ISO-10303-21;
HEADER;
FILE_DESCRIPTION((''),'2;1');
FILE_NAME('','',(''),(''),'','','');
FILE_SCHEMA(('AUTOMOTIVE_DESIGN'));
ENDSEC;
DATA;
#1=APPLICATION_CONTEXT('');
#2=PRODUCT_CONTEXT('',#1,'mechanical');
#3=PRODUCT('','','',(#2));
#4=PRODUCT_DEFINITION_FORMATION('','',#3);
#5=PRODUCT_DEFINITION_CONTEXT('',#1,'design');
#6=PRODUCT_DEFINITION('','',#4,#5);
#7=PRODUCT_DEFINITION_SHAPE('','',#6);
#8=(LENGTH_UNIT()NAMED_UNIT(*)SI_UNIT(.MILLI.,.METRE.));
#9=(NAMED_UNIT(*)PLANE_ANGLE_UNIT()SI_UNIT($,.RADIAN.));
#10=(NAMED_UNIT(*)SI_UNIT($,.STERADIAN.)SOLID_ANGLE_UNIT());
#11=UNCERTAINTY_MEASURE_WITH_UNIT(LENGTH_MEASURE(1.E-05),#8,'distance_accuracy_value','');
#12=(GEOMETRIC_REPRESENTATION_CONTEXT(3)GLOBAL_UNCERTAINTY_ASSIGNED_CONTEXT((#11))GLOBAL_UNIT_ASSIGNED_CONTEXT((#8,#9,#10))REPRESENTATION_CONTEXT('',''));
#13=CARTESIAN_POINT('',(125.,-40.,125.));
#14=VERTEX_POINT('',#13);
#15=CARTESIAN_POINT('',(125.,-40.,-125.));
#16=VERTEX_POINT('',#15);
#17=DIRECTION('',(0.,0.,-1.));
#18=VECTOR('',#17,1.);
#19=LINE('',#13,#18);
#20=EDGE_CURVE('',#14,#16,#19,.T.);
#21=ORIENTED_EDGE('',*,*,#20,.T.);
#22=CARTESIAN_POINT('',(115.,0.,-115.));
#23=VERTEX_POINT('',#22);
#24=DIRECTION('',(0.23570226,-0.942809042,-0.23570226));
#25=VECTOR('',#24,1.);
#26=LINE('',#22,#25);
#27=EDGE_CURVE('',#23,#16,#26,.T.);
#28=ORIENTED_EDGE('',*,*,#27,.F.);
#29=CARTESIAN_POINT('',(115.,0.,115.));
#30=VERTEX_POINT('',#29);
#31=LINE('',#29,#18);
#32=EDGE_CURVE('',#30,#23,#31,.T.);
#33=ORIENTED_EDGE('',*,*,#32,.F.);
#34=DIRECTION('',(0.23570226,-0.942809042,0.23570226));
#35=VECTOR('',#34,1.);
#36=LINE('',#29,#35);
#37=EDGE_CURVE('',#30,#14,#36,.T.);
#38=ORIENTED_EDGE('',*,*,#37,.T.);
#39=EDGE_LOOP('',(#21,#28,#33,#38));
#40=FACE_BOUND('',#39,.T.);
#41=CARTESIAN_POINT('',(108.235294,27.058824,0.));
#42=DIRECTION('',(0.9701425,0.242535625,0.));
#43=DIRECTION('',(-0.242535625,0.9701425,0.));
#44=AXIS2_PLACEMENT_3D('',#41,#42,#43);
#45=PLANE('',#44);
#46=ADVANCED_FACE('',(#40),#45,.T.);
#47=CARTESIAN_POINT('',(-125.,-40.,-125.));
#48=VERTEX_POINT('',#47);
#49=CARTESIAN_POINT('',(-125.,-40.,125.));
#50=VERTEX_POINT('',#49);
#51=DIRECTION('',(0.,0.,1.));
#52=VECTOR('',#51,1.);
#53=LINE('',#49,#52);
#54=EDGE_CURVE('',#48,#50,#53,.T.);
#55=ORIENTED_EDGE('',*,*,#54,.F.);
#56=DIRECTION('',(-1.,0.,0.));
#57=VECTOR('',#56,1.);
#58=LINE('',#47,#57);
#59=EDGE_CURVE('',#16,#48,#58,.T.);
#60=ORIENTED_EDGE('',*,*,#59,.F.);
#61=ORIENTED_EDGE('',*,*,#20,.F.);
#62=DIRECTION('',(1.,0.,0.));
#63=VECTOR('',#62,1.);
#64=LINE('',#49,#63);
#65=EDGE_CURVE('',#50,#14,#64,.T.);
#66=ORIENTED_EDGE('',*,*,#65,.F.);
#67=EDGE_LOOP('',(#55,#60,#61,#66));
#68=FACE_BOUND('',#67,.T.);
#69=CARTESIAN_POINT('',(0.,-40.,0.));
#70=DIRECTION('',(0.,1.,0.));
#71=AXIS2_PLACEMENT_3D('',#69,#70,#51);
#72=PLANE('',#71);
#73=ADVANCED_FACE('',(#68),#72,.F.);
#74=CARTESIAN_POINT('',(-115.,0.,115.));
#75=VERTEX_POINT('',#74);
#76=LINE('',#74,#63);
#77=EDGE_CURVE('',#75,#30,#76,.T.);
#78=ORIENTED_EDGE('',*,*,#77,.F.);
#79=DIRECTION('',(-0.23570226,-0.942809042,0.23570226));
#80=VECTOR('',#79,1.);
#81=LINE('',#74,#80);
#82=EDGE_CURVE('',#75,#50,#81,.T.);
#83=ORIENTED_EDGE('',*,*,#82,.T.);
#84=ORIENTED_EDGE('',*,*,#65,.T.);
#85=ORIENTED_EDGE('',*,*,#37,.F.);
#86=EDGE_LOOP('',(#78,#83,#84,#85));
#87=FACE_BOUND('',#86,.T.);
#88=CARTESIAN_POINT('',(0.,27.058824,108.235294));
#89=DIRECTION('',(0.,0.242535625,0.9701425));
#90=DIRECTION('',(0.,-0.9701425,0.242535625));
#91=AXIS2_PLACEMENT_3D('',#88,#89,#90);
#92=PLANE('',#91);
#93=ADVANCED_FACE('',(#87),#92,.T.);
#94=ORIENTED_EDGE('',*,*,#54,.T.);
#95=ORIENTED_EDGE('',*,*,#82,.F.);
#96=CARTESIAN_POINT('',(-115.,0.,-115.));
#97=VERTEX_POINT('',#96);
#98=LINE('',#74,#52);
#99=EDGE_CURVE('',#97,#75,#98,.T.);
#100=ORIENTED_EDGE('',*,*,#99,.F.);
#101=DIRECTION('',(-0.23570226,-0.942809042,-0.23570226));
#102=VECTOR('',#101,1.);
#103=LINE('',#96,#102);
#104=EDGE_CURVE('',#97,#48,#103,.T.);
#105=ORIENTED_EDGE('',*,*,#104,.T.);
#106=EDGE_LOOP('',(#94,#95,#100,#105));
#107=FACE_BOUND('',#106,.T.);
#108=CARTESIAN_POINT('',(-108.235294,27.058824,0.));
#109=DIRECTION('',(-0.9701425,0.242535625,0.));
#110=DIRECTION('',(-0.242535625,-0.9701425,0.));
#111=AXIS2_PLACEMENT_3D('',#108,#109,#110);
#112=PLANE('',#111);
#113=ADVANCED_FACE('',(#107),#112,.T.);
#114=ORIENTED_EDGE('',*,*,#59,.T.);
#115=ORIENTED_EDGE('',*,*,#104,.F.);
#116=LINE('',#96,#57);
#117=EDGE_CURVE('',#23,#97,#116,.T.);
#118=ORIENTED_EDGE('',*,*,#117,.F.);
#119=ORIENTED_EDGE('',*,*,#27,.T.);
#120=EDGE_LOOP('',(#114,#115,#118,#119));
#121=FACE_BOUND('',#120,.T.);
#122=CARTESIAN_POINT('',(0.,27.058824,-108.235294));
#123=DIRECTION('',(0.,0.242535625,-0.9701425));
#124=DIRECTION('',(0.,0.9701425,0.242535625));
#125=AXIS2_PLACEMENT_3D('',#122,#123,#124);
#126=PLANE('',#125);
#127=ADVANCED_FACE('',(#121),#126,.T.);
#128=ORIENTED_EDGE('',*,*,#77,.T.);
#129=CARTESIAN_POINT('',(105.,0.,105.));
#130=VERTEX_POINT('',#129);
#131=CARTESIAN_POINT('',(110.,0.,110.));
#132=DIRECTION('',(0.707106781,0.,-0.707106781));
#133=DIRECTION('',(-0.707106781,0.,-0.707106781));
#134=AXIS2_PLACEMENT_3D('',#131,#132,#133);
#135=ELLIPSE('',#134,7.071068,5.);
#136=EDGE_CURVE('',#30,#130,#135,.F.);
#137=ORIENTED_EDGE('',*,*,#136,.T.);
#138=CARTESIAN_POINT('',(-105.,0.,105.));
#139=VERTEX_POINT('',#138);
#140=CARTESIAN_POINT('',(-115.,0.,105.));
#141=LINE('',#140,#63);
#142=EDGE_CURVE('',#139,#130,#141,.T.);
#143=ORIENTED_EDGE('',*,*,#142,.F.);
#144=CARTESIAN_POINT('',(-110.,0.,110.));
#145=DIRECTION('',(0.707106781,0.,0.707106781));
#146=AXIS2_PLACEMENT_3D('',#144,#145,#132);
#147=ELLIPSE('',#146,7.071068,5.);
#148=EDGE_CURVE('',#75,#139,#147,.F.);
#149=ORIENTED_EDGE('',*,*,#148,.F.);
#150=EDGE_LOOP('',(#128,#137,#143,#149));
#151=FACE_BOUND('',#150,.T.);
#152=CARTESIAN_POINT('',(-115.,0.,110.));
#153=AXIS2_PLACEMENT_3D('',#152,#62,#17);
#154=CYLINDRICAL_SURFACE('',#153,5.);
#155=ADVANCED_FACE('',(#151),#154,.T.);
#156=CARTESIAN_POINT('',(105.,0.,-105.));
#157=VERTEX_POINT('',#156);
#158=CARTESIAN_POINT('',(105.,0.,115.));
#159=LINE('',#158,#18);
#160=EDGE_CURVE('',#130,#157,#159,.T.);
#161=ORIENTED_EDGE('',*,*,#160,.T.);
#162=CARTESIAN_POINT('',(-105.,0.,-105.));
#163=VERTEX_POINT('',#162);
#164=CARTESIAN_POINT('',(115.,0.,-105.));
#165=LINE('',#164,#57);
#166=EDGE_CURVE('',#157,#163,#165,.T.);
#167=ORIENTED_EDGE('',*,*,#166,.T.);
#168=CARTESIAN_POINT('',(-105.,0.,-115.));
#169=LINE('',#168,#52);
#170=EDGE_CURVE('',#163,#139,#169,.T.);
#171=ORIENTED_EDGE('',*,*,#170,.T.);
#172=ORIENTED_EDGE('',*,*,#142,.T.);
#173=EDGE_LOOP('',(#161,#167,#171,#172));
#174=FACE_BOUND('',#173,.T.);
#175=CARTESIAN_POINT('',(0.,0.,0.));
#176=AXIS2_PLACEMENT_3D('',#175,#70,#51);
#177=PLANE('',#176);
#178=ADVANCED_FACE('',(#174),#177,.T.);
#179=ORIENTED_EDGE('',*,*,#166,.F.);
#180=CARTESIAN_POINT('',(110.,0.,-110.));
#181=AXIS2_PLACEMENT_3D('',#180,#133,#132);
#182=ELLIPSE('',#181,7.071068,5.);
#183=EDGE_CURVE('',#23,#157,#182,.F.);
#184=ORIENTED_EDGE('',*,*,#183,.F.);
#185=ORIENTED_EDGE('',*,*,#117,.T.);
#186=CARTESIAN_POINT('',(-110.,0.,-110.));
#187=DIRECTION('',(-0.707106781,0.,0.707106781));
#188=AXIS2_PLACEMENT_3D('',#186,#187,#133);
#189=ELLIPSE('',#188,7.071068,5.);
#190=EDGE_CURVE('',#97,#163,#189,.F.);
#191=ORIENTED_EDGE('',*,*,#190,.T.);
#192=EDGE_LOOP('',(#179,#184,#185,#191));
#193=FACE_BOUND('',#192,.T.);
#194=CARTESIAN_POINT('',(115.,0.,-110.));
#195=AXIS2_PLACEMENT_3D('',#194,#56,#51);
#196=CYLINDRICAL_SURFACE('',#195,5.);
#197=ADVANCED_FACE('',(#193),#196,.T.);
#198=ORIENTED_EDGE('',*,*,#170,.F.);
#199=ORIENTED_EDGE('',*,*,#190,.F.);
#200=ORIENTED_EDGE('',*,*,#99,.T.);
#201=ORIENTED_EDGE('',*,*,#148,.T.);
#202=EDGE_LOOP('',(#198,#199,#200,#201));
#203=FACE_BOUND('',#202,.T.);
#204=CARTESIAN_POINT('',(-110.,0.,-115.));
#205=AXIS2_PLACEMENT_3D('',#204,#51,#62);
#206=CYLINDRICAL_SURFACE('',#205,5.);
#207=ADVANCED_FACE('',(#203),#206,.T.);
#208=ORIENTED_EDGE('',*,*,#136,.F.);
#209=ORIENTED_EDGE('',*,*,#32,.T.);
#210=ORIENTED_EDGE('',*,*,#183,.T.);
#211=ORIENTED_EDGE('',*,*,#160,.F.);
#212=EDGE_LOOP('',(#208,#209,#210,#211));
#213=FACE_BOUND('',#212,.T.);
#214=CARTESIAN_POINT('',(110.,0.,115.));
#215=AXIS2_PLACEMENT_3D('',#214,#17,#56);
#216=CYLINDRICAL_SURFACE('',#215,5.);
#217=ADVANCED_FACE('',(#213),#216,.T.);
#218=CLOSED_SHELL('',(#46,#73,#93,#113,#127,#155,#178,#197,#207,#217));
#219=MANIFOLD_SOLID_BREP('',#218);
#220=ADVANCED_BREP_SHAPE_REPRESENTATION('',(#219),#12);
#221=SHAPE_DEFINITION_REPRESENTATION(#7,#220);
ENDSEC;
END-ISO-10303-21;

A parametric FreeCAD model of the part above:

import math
import FreeCAD as App
import Part
import Sketcher
from FreeCAD import Vector
Q = App.Units.Quantity


def add_polygon(sketch, points):
    """Adds a closed chain of lines whose ends are joined by coincident constraints."""
    first, n = sketch.GeometryCount, len(points)
    for a, b in zip(points, points[1:] + points[:1]):
        sketch.addGeometry(Part.LineSegment(App.Vector(*a, 0), App.Vector(*b, 0)), False)
    for i in range(n):
        sketch.addConstraint(Sketcher.Constraint("Coincident", first + i, 2, first + (i + 1) % n, 1))

doc = App.newDocument("Part")
body = doc.addObject("PartDesign::Body", "Body")

# Sketch on XZ plane
sketch1 = body.newObject("Sketcher::SketchObject", "Sketch")
sketch1.AttachmentSupport = (doc.getObject("XZ_Plane"), [""])
sketch1.MapMode = "FlatFace"
add_polygon(sketch1, [(-115, -115), (-115, 115), (115, 115), (115, -115)])  # lines 0-3
sketch1.addConstraint(Sketcher.Constraint("Vertical", 0))
sketch1.addConstraint(Sketcher.Constraint("Horizontal", 1))
sketch1.addConstraint(Sketcher.Constraint("Vertical", 2))
sketch1.addConstraint(Sketcher.Constraint("Horizontal", 3))
sketch1.addConstraint(Sketcher.Constraint("Symmetric", 0, 2, 2, 2, -1, 1))
sketch1.addConstraint(Sketcher.Constraint("Equal", 3, 0))
sketch1.addConstraint(Sketcher.Constraint("DistanceX", 1, 1, 1, 2, Q("230 mm")))

# Sketch on XZ plane
sketch2 = body.newObject("Sketcher::SketchObject", "Sketch001")
sketch2.AttachmentSupport = (doc.getObject("XZ_Plane"), [""])
sketch2.MapMode = "FlatFace"
sketch2.AttachmentOffset = App.Placement(Vector(0, 0, 40), App.Rotation())
add_polygon(sketch2, [(125, 125), (125, -125), (-125, -125), (-125, 125)])  # lines 0-3
sketch2.addConstraint(Sketcher.Constraint("Vertical", 0))
sketch2.addConstraint(Sketcher.Constraint("Horizontal", 1))
sketch2.addConstraint(Sketcher.Constraint("Vertical", 2))
sketch2.addConstraint(Sketcher.Constraint("Horizontal", 3))
sketch2.addConstraint(Sketcher.Constraint("Symmetric", 0, 2, 2, 2, -1, 1))
sketch2.addConstraint(Sketcher.Constraint("Equal", 3, 0))
sketch2.addConstraint(Sketcher.Constraint("DistanceX", 1, 2, 1, 1, Q("250 mm")))

additiveloft = body.newObject("PartDesign::AdditiveLoft", "AdditiveLoft")
additiveloft.Profile = sketch1
additiveloft.Sections = [sketch2]

# Sketch on XY plane
sketch3 = body.newObject("Sketcher::SketchObject", "Sketch002")
sketch3.AttachmentSupport = (doc.getObject("XY_Plane"), [""])
sketch3.MapMode = "FlatFace"
sketch3.AttachmentOffset = App.Placement(Vector(0, 0, 115), App.Rotation())
sketch3.addGeometry(Part.LineSegment(Vector(115, 0, 0), Vector(105, 0, 0)), False)
sketch3.addGeometry(Part.ArcOfCircle(Part.Circle(Vector(110, 0, 0), Vector(0, 0, 1), 5), math.radians(0), math.radians(180)), False)
sketch3.addConstraint(Sketcher.Constraint("Coincident", 0, 1, 1, 1))
sketch3.addConstraint(Sketcher.Constraint("Coincident", 1, 2, 0, 2))
sketch3.addConstraint(Sketcher.Constraint("Horizontal", 0))
sketch3.addConstraint(Sketcher.Constraint("PointOnObject", 1, 3, -1))
sketch3.addConstraint(Sketcher.Constraint("PointOnObject", 0, 1, -1))
sketch3.addConstraint(Sketcher.Constraint("Radius", 1, Q("5 mm")))
sketch3.addConstraint(Sketcher.Constraint("DistanceX", -1, 1, 1, 3, Q("110 mm")))

# Sketch on XZ plane
sketch4 = body.newObject("Sketcher::SketchObject", "Sketch003")
sketch4.AttachmentSupport = (doc.getObject("XZ_Plane"), [""])
sketch4.MapMode = "FlatFace"
add_polygon(sketch4, [(-115, 115), (-115, -115), (115, -115), (115, 115)])  # lines 0-3
sketch4.addConstraint(Sketcher.Constraint("Vertical", 0))
sketch4.addConstraint(Sketcher.Constraint("Horizontal", 1))
sketch4.addConstraint(Sketcher.Constraint("Vertical", 2))
sketch4.addConstraint(Sketcher.Constraint("Horizontal", 3))
sketch4.addConstraint(Sketcher.Constraint("Symmetric", 0, 2, 2, 2, -1, 1))
sketch4.addConstraint(Sketcher.Constraint("Equal", 3, 0))
sketch4.addConstraint(Sketcher.Constraint("DistanceX", 1, 1, 1, 2, Q("230 mm")))
doc.recompute()

additivepipe = body.newObject("PartDesign::AdditivePipe", "AdditivePipe")
additivepipe.Profile = sketch3
additivepipe.Spine = (sketch4, ["Edge1", "Edge2", "Edge3", "Edge4"])
additivepipe.Transition = "Right corner"

doc.recompute()
